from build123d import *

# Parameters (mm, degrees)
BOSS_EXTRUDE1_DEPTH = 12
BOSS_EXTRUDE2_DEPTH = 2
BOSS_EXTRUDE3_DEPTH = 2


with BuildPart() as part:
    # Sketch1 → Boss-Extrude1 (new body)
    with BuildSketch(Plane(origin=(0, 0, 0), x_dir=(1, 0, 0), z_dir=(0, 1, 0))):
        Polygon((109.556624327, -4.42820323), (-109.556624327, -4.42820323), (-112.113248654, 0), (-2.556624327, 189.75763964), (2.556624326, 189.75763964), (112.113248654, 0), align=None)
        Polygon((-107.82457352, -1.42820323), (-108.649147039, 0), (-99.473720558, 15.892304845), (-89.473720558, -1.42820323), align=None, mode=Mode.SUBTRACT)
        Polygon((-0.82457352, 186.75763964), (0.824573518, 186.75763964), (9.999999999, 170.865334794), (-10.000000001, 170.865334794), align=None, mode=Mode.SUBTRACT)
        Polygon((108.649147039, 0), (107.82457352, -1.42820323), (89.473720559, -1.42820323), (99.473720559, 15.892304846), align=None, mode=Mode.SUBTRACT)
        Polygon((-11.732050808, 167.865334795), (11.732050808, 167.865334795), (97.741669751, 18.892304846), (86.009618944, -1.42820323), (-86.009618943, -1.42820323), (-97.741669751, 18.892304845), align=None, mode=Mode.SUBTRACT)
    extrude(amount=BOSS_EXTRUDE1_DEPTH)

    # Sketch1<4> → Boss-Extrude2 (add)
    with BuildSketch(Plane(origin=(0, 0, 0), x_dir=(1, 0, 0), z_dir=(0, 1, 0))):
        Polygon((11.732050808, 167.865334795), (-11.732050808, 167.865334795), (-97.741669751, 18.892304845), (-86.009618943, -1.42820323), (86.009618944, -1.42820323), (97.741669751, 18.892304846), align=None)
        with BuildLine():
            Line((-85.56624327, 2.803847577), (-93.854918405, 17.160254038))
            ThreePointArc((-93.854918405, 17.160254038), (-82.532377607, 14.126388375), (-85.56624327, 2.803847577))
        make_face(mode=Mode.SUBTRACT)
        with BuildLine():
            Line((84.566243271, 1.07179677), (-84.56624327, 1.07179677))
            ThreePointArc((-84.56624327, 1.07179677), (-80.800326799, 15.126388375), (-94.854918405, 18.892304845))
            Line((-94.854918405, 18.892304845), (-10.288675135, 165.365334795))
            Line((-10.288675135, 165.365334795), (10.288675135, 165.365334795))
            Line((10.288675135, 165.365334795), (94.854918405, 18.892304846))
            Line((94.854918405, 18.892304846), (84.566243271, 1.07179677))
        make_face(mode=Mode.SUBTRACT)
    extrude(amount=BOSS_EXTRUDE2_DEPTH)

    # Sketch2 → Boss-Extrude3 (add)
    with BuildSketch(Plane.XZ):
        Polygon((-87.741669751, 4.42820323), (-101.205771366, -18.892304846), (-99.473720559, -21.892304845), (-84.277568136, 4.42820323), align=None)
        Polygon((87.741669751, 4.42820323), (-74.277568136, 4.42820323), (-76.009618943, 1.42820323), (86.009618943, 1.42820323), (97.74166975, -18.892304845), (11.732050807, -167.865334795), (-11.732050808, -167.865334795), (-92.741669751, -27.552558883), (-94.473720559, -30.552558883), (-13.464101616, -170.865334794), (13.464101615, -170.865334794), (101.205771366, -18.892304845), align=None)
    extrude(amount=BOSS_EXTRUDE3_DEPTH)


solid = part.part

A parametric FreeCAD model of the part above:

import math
import FreeCAD as App
import Part
import Sketcher

V = App.Vector
Q = App.Units.Quantity

doc = App.newDocument("Part")
body = doc.addObject("PartDesign::Body", "Body")

# Sketch on XZ plane
sketch1 = body.newObject("Sketcher::SketchObject", "Sketch")
sketch1.AttachmentSupport = (doc.getObject("XZ_Plane"), [""])
sketch1.MapMode = "FlatFace"
sketch1.addGeometry(Part.LineSegment(V(-109.556624, 4.428203, 0), V(109.556624, 4.428203, 0)), False)
sketch1.addGeometry(Part.LineSegment(V(109.556624, 4.428203, 0), V(112.113249, 0, 0)), False)
sketch1.addGeometry(Part.LineSegment(V(112.113249, 0, 0), V(2.556624, -189.75764, 0)), False)
sketch1.addGeometry(Part.LineSegment(V(2.556624, -189.75764, 0), V(-2.556624, -189.75764, 0)), False)
sketch1.addGeometry(Part.LineSegment(V(-2.556624, -189.75764, 0), V(-112.113249, 0, 0)), False)
sketch1.addGeometry(Part.LineSegment(V(-112.113249, 0, 0), V(-109.556624, 4.428203, 0)), False)
sketch1.addGeometry(Part.LineSegment(V(108.649147, 0, 0), V(107.824574, 1.428203, 0)), False)
sketch1.addGeometry(Part.LineSegment(V(107.824574, 1.428203, 0), V(89.473721, 1.428203, 0)), False)
sketch1.addGeometry(Part.LineSegment(V(89.473721, 1.428203, 0), V(99.473721, -15.892305, 0)), False)
sketch1.addGeometry(Part.LineSegment(V(99.473721, -15.892305, 0), V(108.649147, 0, 0)), False)
sketch1.addGeometry(Part.LineSegment(V(-107.824574, 1.428203, 0), V(-108.649147, 0, 0)), False)
sketch1.addGeometry(Part.LineSegment(V(-108.649147, 0, 0), V(-99.473721, -15.892305, 0)), False)
sketch1.addGeometry(Part.LineSegment(V(-99.473721, -15.892305, 0), V(-89.473721, 1.428203, 0)), False)
sketch1.addGeometry(Part.LineSegment(V(-89.473721, 1.428203, 0), V(-107.824574, 1.428203, 0)), False)
sketch1.addGeometry(Part.LineSegment(V(-11.732051, -167.865335, 0), V(11.732051, -167.865335, 0)), False)
sketch1.addGeometry(Part.LineSegment(V(11.732051, -167.865335, 0), V(97.74167, -18.892305, 0)), False)
sketch1.addGeometry(Part.LineSegment(V(97.74167, -18.892305, 0), V(86.009619, 1.428203, 0)), False)
sketch1.addGeometry(Part.LineSegment(V(86.009619, 1.428203, 0), V(-86.009619, 1.428203, 0)), False)
sketch1.addGeometry(Part.LineSegment(V(-86.009619, 1.428203, 0), V(-97.74167, -18.892305, 0)), False)
sketch1.addGeometry(Part.LineSegment(V(-97.74167, -18.892305, 0), V(-11.732051, -167.865335, 0)), False)
sketch1.addGeometry(Part.LineSegment(V(-0.824574, -186.75764, 0), V(0.824574, -186.75764, 0)), False)
sketch1.addGeometry(Part.LineSegment(V(0.824574, -186.75764, 0), V(10, -170.865335, 0)), False)
sketch1.addGeometry(Part.LineSegment(V(10, -170.865335, 0), V(-10, -170.865335, 0)), False)
sketch1.addGeometry(Part.LineSegment(V(-10, -170.865335, 0), V(-0.824574, -186.75764, 0)), False)
sketch1.addConstraint(Sketcher.Constraint("Coincident", 0, 2, 1, 1))
sketch1.addConstraint(Sketcher.Constraint("Coincident", 1, 2, 2, 1))
sketch1.addConstraint(Sketcher.Constraint("Coincident", 2, 2, 3, 1))
sketch1.addConstraint(Sketcher.Constraint("Coincident", 3, 2, 4, 1))
sketch1.addConstraint(Sketcher.Constraint("Coincident", 4, 2, 5, 1))
sketch1.addConstraint(Sketcher.Constraint("Coincident", 5, 2, 0, 1))
sketch1.addConstraint(Sketcher.Constraint("Coincident", 6, 2, 7, 1))
sketch1.addConstraint(Sketcher.Constraint("Coincident", 7, 2, 8, 1))
sketch1.addConstraint(Sketcher.Constraint("Coincident", 8, 2, 9, 1))
sketch1.addConstraint(Sketcher.Constraint("Coincident", 9, 2, 6, 1))
sketch1.addConstraint(Sketcher.Constraint("Coincident", 10, 2, 11, 1))
sketch1.addConstraint(Sketcher.Constraint("Coincident", 11, 2, 12, 1))
sketch1.addConstraint(Sketcher.Constraint("Coincident", 12, 2, 13, 1))
sketch1.addConstraint(Sketcher.Constraint("Coincident", 13, 2, 10, 1))
sketch1.addConstraint(Sketcher.Constraint("Coincident", 14, 2, 15, 1))
sketch1.addConstraint(Sketcher.Constraint("Coincident", 15, 2, 16, 1))
sketch1.addConstraint(Sketcher.Constraint("Coincident", 16, 2, 17, 1))
sketch1.addConstraint(Sketcher.Constraint("Coincident", 17, 2, 18, 1))
sketch1.addConstraint(Sketcher.Constraint("Coincident", 18, 2, 19, 1))
sketch1.addConstraint(Sketcher.Constraint("Coincident", 19, 2, 14, 1))
sketch1.addConstraint(Sketcher.Constraint("Coincident", 20, 2, 21, 1))
sketch1.addConstraint(Sketcher.Constraint("Coincident", 21, 2, 22, 1))
sketch1.addConstraint(Sketcher.Constraint("Coincident", 22, 2, 23, 1))
sketch1.addConstraint(Sketcher.Constraint("Coincident", 23, 2, 20, 1))
sketch1.addConstraint(Sketcher.Constraint("Horizontal", 0))
sketch1.addConstraint(Sketcher.Constraint("Horizontal", 3))
sketch1.addConstraint(Sketcher.Constraint("Horizontal", 7))
sketch1.addConstraint(Sketcher.Constraint("Horizontal", 13))
sketch1.addConstraint(Sketcher.Constraint("Horizontal", 14))
sketch1.addConstraint(Sketcher.Constraint("Horizontal", 17))
sketch1.addConstraint(Sketcher.Constraint("Horizontal", 20))
sketch1.addConstraint(Sketcher.Constraint("Horizontal", 22))
sketch1.addConstraint(Sketcher.Constraint("Symmetric", 1, 2, 4, 2, -1, 1))
sketch1.addConstraint(Sketcher.Constraint("Symmetric", 9, 2, 10, 2, -1, 1))
sketch1.addConstraint(Sketcher.Constraint("Symmetric", 8, 2, 11, 2, -2))
sketch1.addConstraint(Sketcher.Constraint("Symmetric", 7, 2, 12, 2, -2))
sketch1.addConstraint(Sketcher.Constraint("Symmetric", 15, 2, 18, 2, -2))
sketch1.addConstraint(Sketcher.Constraint("PointOnObject", 1, 2, -1))
sketch1.addConstraint(Sketcher.Constraint("PointOnObject", 9, 2, -1))
sketch1.addConstraint(Sketcher.Constraint("Parallel", 1, 4))
sketch1.addConstraint(Sketcher.Constraint("Parallel", 2, 5))
sketch1.addConstraint(Sketcher.Constraint("Parallel", 4, 6))
sketch1.addConstraint(Sketcher.Constraint("Parallel", 6, 8))
sketch1.addConstraint(Sketcher.Constraint("Parallel", 5, 9))
sketch1.addConstraint(Sketcher.Constraint("Parallel", 9, 10))
sketch1.addConstraint(Sketcher.Constraint("Parallel", 8, 11))
sketch1.addConstraint(Sketcher.Constraint("Parallel", 12, 15))
sketch1.addConstraint(Sketcher.Constraint("Parallel", 11, 16))
sketch1.addConstraint(Sketcher.Constraint("Parallel", 15, 18))
sketch1.addConstraint(Sketcher.Constraint("Parallel", 16, 19))
sketch1.addConstraint(Sketcher.Constraint("Parallel", 18, 21))
sketch1.addConstraint(Sketcher.Constraint("Parallel", 19, 23))
sketch1.addConstraint(Sketcher.Constraint("Horizontal", 13, 2, 16, 2))
sketch1.addConstraint(Sketcher.Constraint("Equal", 11, 21))
sketch1.addConstraint(Sketcher.Constraint("DistanceX", 22, 2, 22, 1, 20.0))
sketch1.addConstraint(Sketcher.Constraint("Angle", 1, Q("-60 deg")))
sketch1.addConstraint(Sketcher.Constraint("Distance", 8, 20.0))
sketch1.addConstraint(Sketcher.Constraint("DistanceX", -1, 1, 21, 2, 10.0))
sketch1.addConstraint(Sketcher.Constraint("DistanceX", 2, 2, 0, 2, 107.0))
sketch1.addConstraint(Sketcher.Constraint("DistanceY", 6, 2, 0, 2, 3.0))
sketch1.addConstraint(Sketcher.Constraint("DistanceY", 15, 2, 8, 2, 3.0))
sketch1.addConstraint(Sketcher.Constraint("DistanceY", 2, 2, 20, 2, 3.0))
sketch1.addConstraint(Sketcher.Constraint("DistanceY", 21, 2, 14, 2, 3.0))
sketch1.addConstraint(Sketcher.Constraint("DistanceX", 14, 1, 14, 2, 23.464102))
sketch1.addConstraint(Sketcher.Constraint("DistanceX", 0, 1, 0, 2, 219.113249))
sketch1.addConstraint(Sketcher.Constraint("DistanceX", 9, 2, 1, 2, 3.464102))
sketch1.addConstraint(Sketcher.Constraint("DistanceX", 16, 2, 7, 2, 3.464102))
pad1 = body.newObject("PartDesign::Pad", "Pad")
pad1.Profile = sketch1
pad1.Length = 12
pad1.Reversed = True

# Sketch on XZ plane
sketch2 = body.newObject("Sketcher::SketchObject", "Sketch001")
sketch2.AttachmentSupport = (doc.getObject("XZ_Plane"), [""])
sketch2.MapMode = "FlatFace"
sketch2.addGeometry(Part.LineSegment(V(11.732051, -167.865335, 0), V(-11.732051, -167.865335, 0)), False)
sketch2.addGeometry(Part.LineSegment(V(-11.732051, -167.865335, 0), V(-97.74167, -18.892305, 0)), False)
sketch2.addGeometry(Part.LineSegment(V(-97.74167, -18.892305, 0), V(-86.009619, 1.428203, 0)), False)
sketch2.addGeometry(Part.LineSegment(V(-86.009619, 1.428203, 0), V(86.009619, 1.428203, 0)), False)
sketch2.addGeometry(Part.LineSegment(V(86.009619, 1.428203, 0), V(97.74167, -18.892305, 0)), False)
sketch2.addGeometry(Part.LineSegment(V(97.74167, -18.892305, 0), V(11.732051, -167.865335, 0)), False)
sketch2.addGeometry(Part.ArcOfCircle(Part.Circle(V(-89.710581, -9.982051, 0), V(0, 0, 1), 8.288675), math.radians(-120), math.radians(60)), False)
sketch2.addGeometry(Part.LineSegment(V(-85.566243, -2.803848, 0), V(-93.854918, -17.160254, 0)), False)
sketch2.addGeometry(Part.LineSegment(V(94.854918, -18.892305, 0), V(84.566243, -1.071797, 0)), False)
sketch2.addGeometry(Part.LineSegment(V(84.566243, -1.071797, 0), V(-84.566243, -1.071797, 0)), False)
sketch2.addGeometry(Part.ArcOfCircle(Part.Circle(V(-89.710581, -9.982051, 0), V(0, 0, 1), 10.288675), math.radians(-120), math.radians(60)), False)
sketch2.addGeometry(Part.LineSegment(V(-94.854918, -18.892305, 0), V(-10.288675, -165.365335, 0)), False)
sketch2.addGeometry(Part.LineSegment(V(-10.288675, -165.365335, 0), V(10.288675, -165.365335, 0)), False)
sketch2.addGeometry(Part.LineSegment(V(10.288675, -165.365335, 0), V(94.854918, -18.892305, 0)), False)
sketch2.addConstraint(Sketcher.Constraint("Coincident", 0, 2, 1, 1))
sketch2.addConstraint(Sketcher.Constraint("Coincident", 1, 2, 2, 1))
sketch2.addConstraint(Sketcher.Constraint("Coincident", 2, 2, 3, 1))
sketch2.addConstraint(Sketcher.Constraint("Coincident", 3, 2, 4, 1))
sketch2.addConstraint(Sketcher.Constraint("Coincident", 4, 2, 5, 1))
sketch2.addConstraint(Sketcher.Constraint("Coincident", 5, 2, 0, 1))
sketch2.addConstraint(Sketcher.Constraint("Coincident", 6, 1, 7, 2))
sketch2.addConstraint(Sketcher.Constraint("Coincident", 7, 1, 6, 2))
sketch2.addConstraint(Sketcher.Constraint("Coincident", 8, 2, 9, 1))
sketch2.addConstraint(Sketcher.Constraint("Coincident", 9, 2, 10, 2))
sketch2.addConstraint(Sketcher.Constraint("Coincident", 10, 1, 11, 1))
sketch2.addConstraint(Sketcher.Constraint("Coincident", 11, 2, 12, 1))
sketch2.addConstraint(Sketcher.Constraint("Coincident", 12, 2, 13, 1))
sketch2.addConstraint(Sketcher.Constraint("Coincident", 13, 2, 8, 1))
sketch2.addConstraint(Sketcher.Constraint("Horizontal", 0))
sketch2.addConstraint(Sketcher.Constraint("Horizontal", 3))
sketch2.addConstraint(Sketcher.Constraint("Horizontal", 9))
sketch2.addConstraint(Sketcher.Constraint("Horizontal", 12))
sketch2.addConstraint(Sketcher.Constraint("Coincident", 10, 3, 6, 3))
sketch2.addConstraint(Sketcher.Constraint("Symmetric", 1, 2, 4, 2, -2))
sketch2.addConstraint(Sketcher.Constraint("Symmetric", 10, 1, 13, 2, -2))
sketch2.addConstraint(Sketcher.Constraint("Parallel", 1, 4))
sketch2.addConstraint(Sketcher.Constraint("Parallel", 2, 5))
sketch2.addConstraint(Sketcher.Constraint("Parallel", 5, 7))
sketch2.addConstraint(Sketcher.Constraint("Parallel", 4, 8))
sketch2.addConstraint(Sketcher.Constraint("Parallel", 8, 11))
sketch2.addConstraint(Sketcher.Constraint("Parallel", 7, 13))
sketch2.addConstraint(Sketcher.Constraint("Horizontal", 4, 2, 10, 1))
sketch2.addConstraint(Sketcher.Constraint("Equal", 2, 4))
sketch2.addConstraint(Sketcher.Constraint("Angle", 1, Q("120 deg")))
sketch2.addConstraint(Sketcher.Constraint("DistanceX", 7, 1, 9, 2, 1.0))
sketch2.addConstraint(Sketcher.Constraint("DistanceX", 10, 1, 6, 1, 1.0))
sketch2.addConstraint(Sketcher.Constraint("DistanceY", 8, 2, 3, 2, 2.5))
sketch2.addConstraint(Sketcher.Constraint("DistanceY", 0, 2, 11, 2, 2.5))
sketch2.addConstraint(Sketcher.Constraint("DistanceX", 0, 2, 0, 1, 23.464102))
sketch2.addConstraint(Sketcher.Constraint("Radius", 6, 8.288675))
sketch2.addConstraint(Sketcher.Constraint("Radius", 10, 10.288675))
sketch2.addConstraint(Sketcher.Constraint("DistanceX", 12, 1, 12, 2, 20.57735))
sketch2.addConstraint(Sketcher.Constraint("DistanceX", 10, 3, 3, 2, 175.7202))
sketch2.addConstraint(Sketcher.Constraint("DistanceX", 3, 1, 3, 2, 172.019238))
sketch2.addConstraint(Sketcher.Constraint("DistanceY", 6, 3, -1, 1, 9.982051))
pad2 = body.newObject("PartDesign::Pad", "Pad001")
pad2.Profile = sketch2
pad2.Length = 2
pad2.Reversed = True

# Sketch on XZ plane
sketch3 = body.newObject("Sketcher::SketchObject", "Sketch002")
sketch3.AttachmentSupport = (doc.getObject("XZ_Plane"), [""])
sketch3.MapMode = "FlatFace"
sketch3.addGeometry(Part.LineSegment(V(-87.74167, 4.428203, 0), V(-101.205771, -18.892305, 0)), False)
sketch3.addGeometry(Part.LineSegment(V(-101.205771, -18.892305, 0), V(-99.473721, -21.892305, 0)), False)
sketch3.addGeometry(Part.LineSegment(V(-99.473721, -21.892305, 0), V(-84.277568, 4.428203, 0)), False)
sketch3.addGeometry(Part.LineSegment(V(-84.277568, 4.428203, 0), V(-87.74167, 4.428203, 0)), False)
sketch3.addGeometry(Part.LineSegment(V(87.74167, 4.428203, 0), V(-74.277568, 4.428203, 0)), False)
sketch3.addGeometry(Part.LineSegment(V(-74.277568, 4.428203, 0), V(-76.009619, 1.428203, 0)), False)
sketch3.addGeometry(Part.LineSegment(V(-76.009619, 1.428203, 0), V(86.009619, 1.428203, 0)), False)
sketch3.addGeometry(Part.LineSegment(V(86.009619, 1.428203, 0), V(97.74167, -18.892305, 0)), False)
sketch3.addGeometry(Part.LineSegment(V(97.74167, -18.892305, 0), V(11.732051, -167.865335, 0)), False)
sketch3.addGeometry(Part.LineSegment(V(11.732051, -167.865335, 0), V(-11.732051, -167.865335, 0)), False)
sketch3.addGeometry(Part.LineSegment(V(-11.732051, -167.865335, 0), V(-92.74167, -27.552559, 0)), False)
sketch3.addGeometry(Part.LineSegment(V(-92.74167, -27.552559, 0), V(-94.473721, -30.552559, 0)), False)
sketch3.addGeometry(Part.LineSegment(V(-94.473721, -30.552559, 0), V(-13.464102, -170.865335, 0)), False)
sketch3.addGeometry(Part.LineSegment(V(-13.464102, -170.865335, 0), V(13.464102, -170.865335, 0)), False)
sketch3.addGeometry(Part.LineSegment(V(13.464102, -170.865335, 0), V(101.205771, -18.892305, 0)), False)
sketch3.addGeometry(Part.LineSegment(V(101.205771, -18.892305, 0), V(87.74167, 4.428203, 0)), False)
sketch3.addConstraint(Sketcher.Constraint("Coincident", 0, 2, 1, 1))
sketch3.addConstraint(Sketcher.Constraint("Coincident", 1, 2, 2, 1))
sketch3.addConstraint(Sketcher.Constraint("Coincident", 2, 2, 3, 1))
sketch3.addConstraint(Sketcher.Constraint("Coincident", 3, 2, 0, 1))
sketch3.addConstraint(Sketcher.Constraint("Coincident", 4, 2, 5, 1))
sketch3.addConstraint(Sketcher.Constraint("Coincident", 5, 2, 6, 1))
sketch3.addConstraint(Sketcher.Constraint("Coincident", 6, 2, 7, 1))
sketch3.addConstraint(Sketcher.Constraint("Coincident", 7, 2, 8, 1))
sketch3.addConstraint(Sketcher.Constraint("Coincident", 8, 2, 9, 1))
sketch3.addConstraint(Sketcher.Constraint("Coincident", 9, 2, 10, 1))
sketch3.addConstraint(Sketcher.Constraint("Coincident", 10, 2, 11, 1))
sketch3.addConstraint(Sketcher.Constraint("Coincident", 11, 2, 12, 1))
sketch3.addConstraint(Sketcher.Constraint("Coincident", 12, 2, 13, 1))
sketch3.addConstraint(Sketcher.Constraint("Coincident", 13, 2, 14, 1))
sketch3.addConstraint(Sketcher.Constraint("Coincident", 14, 2, 15, 1))
sketch3.addConstraint(Sketcher.Constraint("Coincident", 15, 2, 4, 1))
sketch3.addConstraint(Sketcher.Constraint("Horizontal", 3))
sketch3.addConstraint(Sketcher.Constraint("Horizontal", 4))
sketch3.addConstraint(Sketcher.Constraint("Horizontal", 6))
sketch3.addConstraint(Sketcher.Constraint("Horizontal", 9))
sketch3.addConstraint(Sketcher.Constraint("Horizontal", 13))
sketch3.addConstraint(Sketcher.Constraint("Symmetric", 0, 2, 14, 2, -2))
sketch3.addConstraint(Sketcher.Constraint("Symmetric", 3, 2, 15, 2, -2))
sketch3.addConstraint(Sketcher.Constraint("Parallel", 0, 2))
sketch3.addConstraint(Sketcher.Constraint("Parallel", 2, 5))
sketch3.addConstraint(Sketcher.Constraint("Parallel", 1, 7))
sketch3.addConstraint(Sketcher.Constraint("Parallel", 5, 8))
sketch3.addConstraint(Sketcher.Constraint("Parallel", 7, 10))
sketch3.addConstraint(Sketcher.Constraint("Parallel", 8, 11))
sketch3.addConstraint(Sketcher.Constraint("Parallel", 10, 12))
sketch3.addConstraint(Sketcher.Constraint("Parallel", 11, 14))
sketch3.addConstraint(Sketcher.Constraint("Parallel", 12, 15))
sketch3.addConstraint(Sketcher.Constraint("Horizontal", 0, 2, 7, 2))
sketch3.addConstraint(Sketcher.Constraint("Equal", 4, 6))
sketch3.addConstraint(Sketcher.Constraint("Equal", 1, 5))
sketch3.addConstraint(Sketcher.Constraint("Equal", 5, 11))
sketch3.addConstraint(Sketcher.Constraint("Equal", 10, 12))
sketch3.addConstraint(Sketcher.Constraint("Angle", 0, Q("-120 deg")))
sketch3.addConstraint(Sketcher.Constraint("DistanceY", 1, 2, 0, 2, 3.0))
sketch3.addConstraint(Sketcher.Constraint("DistanceX", 2, 2, 4, 2, 10.0))
sketch3.addConstraint(Sketcher.Constraint("DistanceX", 10, 2, 3, 2, 5.0))
sketch3.addConstraint(Sketcher.Constraint("DistanceX", 1, 2, 11, 2, 5.0))
sketch3.addConstraint(Sketcher.Constraint("DistanceX", 9, 2, 9, 1, 23.464102))
sketch3.addConstraint(Sketcher.Constraint("DistanceX", 12, 2, -1, 1, 13.464102))
sketch3.addConstraint(Sketcher.Constraint("Distance", 14, 175.48334))
sketch3.addConstraint(Sketcher.Constraint("DistanceY", 10, 2, -1, 1, 27.552559))
pad3 = body.newObject("PartDesign::Pad", "Pad002")
pad3.Profile = sketch3
pad3.Length = 2

doc.recompute()
